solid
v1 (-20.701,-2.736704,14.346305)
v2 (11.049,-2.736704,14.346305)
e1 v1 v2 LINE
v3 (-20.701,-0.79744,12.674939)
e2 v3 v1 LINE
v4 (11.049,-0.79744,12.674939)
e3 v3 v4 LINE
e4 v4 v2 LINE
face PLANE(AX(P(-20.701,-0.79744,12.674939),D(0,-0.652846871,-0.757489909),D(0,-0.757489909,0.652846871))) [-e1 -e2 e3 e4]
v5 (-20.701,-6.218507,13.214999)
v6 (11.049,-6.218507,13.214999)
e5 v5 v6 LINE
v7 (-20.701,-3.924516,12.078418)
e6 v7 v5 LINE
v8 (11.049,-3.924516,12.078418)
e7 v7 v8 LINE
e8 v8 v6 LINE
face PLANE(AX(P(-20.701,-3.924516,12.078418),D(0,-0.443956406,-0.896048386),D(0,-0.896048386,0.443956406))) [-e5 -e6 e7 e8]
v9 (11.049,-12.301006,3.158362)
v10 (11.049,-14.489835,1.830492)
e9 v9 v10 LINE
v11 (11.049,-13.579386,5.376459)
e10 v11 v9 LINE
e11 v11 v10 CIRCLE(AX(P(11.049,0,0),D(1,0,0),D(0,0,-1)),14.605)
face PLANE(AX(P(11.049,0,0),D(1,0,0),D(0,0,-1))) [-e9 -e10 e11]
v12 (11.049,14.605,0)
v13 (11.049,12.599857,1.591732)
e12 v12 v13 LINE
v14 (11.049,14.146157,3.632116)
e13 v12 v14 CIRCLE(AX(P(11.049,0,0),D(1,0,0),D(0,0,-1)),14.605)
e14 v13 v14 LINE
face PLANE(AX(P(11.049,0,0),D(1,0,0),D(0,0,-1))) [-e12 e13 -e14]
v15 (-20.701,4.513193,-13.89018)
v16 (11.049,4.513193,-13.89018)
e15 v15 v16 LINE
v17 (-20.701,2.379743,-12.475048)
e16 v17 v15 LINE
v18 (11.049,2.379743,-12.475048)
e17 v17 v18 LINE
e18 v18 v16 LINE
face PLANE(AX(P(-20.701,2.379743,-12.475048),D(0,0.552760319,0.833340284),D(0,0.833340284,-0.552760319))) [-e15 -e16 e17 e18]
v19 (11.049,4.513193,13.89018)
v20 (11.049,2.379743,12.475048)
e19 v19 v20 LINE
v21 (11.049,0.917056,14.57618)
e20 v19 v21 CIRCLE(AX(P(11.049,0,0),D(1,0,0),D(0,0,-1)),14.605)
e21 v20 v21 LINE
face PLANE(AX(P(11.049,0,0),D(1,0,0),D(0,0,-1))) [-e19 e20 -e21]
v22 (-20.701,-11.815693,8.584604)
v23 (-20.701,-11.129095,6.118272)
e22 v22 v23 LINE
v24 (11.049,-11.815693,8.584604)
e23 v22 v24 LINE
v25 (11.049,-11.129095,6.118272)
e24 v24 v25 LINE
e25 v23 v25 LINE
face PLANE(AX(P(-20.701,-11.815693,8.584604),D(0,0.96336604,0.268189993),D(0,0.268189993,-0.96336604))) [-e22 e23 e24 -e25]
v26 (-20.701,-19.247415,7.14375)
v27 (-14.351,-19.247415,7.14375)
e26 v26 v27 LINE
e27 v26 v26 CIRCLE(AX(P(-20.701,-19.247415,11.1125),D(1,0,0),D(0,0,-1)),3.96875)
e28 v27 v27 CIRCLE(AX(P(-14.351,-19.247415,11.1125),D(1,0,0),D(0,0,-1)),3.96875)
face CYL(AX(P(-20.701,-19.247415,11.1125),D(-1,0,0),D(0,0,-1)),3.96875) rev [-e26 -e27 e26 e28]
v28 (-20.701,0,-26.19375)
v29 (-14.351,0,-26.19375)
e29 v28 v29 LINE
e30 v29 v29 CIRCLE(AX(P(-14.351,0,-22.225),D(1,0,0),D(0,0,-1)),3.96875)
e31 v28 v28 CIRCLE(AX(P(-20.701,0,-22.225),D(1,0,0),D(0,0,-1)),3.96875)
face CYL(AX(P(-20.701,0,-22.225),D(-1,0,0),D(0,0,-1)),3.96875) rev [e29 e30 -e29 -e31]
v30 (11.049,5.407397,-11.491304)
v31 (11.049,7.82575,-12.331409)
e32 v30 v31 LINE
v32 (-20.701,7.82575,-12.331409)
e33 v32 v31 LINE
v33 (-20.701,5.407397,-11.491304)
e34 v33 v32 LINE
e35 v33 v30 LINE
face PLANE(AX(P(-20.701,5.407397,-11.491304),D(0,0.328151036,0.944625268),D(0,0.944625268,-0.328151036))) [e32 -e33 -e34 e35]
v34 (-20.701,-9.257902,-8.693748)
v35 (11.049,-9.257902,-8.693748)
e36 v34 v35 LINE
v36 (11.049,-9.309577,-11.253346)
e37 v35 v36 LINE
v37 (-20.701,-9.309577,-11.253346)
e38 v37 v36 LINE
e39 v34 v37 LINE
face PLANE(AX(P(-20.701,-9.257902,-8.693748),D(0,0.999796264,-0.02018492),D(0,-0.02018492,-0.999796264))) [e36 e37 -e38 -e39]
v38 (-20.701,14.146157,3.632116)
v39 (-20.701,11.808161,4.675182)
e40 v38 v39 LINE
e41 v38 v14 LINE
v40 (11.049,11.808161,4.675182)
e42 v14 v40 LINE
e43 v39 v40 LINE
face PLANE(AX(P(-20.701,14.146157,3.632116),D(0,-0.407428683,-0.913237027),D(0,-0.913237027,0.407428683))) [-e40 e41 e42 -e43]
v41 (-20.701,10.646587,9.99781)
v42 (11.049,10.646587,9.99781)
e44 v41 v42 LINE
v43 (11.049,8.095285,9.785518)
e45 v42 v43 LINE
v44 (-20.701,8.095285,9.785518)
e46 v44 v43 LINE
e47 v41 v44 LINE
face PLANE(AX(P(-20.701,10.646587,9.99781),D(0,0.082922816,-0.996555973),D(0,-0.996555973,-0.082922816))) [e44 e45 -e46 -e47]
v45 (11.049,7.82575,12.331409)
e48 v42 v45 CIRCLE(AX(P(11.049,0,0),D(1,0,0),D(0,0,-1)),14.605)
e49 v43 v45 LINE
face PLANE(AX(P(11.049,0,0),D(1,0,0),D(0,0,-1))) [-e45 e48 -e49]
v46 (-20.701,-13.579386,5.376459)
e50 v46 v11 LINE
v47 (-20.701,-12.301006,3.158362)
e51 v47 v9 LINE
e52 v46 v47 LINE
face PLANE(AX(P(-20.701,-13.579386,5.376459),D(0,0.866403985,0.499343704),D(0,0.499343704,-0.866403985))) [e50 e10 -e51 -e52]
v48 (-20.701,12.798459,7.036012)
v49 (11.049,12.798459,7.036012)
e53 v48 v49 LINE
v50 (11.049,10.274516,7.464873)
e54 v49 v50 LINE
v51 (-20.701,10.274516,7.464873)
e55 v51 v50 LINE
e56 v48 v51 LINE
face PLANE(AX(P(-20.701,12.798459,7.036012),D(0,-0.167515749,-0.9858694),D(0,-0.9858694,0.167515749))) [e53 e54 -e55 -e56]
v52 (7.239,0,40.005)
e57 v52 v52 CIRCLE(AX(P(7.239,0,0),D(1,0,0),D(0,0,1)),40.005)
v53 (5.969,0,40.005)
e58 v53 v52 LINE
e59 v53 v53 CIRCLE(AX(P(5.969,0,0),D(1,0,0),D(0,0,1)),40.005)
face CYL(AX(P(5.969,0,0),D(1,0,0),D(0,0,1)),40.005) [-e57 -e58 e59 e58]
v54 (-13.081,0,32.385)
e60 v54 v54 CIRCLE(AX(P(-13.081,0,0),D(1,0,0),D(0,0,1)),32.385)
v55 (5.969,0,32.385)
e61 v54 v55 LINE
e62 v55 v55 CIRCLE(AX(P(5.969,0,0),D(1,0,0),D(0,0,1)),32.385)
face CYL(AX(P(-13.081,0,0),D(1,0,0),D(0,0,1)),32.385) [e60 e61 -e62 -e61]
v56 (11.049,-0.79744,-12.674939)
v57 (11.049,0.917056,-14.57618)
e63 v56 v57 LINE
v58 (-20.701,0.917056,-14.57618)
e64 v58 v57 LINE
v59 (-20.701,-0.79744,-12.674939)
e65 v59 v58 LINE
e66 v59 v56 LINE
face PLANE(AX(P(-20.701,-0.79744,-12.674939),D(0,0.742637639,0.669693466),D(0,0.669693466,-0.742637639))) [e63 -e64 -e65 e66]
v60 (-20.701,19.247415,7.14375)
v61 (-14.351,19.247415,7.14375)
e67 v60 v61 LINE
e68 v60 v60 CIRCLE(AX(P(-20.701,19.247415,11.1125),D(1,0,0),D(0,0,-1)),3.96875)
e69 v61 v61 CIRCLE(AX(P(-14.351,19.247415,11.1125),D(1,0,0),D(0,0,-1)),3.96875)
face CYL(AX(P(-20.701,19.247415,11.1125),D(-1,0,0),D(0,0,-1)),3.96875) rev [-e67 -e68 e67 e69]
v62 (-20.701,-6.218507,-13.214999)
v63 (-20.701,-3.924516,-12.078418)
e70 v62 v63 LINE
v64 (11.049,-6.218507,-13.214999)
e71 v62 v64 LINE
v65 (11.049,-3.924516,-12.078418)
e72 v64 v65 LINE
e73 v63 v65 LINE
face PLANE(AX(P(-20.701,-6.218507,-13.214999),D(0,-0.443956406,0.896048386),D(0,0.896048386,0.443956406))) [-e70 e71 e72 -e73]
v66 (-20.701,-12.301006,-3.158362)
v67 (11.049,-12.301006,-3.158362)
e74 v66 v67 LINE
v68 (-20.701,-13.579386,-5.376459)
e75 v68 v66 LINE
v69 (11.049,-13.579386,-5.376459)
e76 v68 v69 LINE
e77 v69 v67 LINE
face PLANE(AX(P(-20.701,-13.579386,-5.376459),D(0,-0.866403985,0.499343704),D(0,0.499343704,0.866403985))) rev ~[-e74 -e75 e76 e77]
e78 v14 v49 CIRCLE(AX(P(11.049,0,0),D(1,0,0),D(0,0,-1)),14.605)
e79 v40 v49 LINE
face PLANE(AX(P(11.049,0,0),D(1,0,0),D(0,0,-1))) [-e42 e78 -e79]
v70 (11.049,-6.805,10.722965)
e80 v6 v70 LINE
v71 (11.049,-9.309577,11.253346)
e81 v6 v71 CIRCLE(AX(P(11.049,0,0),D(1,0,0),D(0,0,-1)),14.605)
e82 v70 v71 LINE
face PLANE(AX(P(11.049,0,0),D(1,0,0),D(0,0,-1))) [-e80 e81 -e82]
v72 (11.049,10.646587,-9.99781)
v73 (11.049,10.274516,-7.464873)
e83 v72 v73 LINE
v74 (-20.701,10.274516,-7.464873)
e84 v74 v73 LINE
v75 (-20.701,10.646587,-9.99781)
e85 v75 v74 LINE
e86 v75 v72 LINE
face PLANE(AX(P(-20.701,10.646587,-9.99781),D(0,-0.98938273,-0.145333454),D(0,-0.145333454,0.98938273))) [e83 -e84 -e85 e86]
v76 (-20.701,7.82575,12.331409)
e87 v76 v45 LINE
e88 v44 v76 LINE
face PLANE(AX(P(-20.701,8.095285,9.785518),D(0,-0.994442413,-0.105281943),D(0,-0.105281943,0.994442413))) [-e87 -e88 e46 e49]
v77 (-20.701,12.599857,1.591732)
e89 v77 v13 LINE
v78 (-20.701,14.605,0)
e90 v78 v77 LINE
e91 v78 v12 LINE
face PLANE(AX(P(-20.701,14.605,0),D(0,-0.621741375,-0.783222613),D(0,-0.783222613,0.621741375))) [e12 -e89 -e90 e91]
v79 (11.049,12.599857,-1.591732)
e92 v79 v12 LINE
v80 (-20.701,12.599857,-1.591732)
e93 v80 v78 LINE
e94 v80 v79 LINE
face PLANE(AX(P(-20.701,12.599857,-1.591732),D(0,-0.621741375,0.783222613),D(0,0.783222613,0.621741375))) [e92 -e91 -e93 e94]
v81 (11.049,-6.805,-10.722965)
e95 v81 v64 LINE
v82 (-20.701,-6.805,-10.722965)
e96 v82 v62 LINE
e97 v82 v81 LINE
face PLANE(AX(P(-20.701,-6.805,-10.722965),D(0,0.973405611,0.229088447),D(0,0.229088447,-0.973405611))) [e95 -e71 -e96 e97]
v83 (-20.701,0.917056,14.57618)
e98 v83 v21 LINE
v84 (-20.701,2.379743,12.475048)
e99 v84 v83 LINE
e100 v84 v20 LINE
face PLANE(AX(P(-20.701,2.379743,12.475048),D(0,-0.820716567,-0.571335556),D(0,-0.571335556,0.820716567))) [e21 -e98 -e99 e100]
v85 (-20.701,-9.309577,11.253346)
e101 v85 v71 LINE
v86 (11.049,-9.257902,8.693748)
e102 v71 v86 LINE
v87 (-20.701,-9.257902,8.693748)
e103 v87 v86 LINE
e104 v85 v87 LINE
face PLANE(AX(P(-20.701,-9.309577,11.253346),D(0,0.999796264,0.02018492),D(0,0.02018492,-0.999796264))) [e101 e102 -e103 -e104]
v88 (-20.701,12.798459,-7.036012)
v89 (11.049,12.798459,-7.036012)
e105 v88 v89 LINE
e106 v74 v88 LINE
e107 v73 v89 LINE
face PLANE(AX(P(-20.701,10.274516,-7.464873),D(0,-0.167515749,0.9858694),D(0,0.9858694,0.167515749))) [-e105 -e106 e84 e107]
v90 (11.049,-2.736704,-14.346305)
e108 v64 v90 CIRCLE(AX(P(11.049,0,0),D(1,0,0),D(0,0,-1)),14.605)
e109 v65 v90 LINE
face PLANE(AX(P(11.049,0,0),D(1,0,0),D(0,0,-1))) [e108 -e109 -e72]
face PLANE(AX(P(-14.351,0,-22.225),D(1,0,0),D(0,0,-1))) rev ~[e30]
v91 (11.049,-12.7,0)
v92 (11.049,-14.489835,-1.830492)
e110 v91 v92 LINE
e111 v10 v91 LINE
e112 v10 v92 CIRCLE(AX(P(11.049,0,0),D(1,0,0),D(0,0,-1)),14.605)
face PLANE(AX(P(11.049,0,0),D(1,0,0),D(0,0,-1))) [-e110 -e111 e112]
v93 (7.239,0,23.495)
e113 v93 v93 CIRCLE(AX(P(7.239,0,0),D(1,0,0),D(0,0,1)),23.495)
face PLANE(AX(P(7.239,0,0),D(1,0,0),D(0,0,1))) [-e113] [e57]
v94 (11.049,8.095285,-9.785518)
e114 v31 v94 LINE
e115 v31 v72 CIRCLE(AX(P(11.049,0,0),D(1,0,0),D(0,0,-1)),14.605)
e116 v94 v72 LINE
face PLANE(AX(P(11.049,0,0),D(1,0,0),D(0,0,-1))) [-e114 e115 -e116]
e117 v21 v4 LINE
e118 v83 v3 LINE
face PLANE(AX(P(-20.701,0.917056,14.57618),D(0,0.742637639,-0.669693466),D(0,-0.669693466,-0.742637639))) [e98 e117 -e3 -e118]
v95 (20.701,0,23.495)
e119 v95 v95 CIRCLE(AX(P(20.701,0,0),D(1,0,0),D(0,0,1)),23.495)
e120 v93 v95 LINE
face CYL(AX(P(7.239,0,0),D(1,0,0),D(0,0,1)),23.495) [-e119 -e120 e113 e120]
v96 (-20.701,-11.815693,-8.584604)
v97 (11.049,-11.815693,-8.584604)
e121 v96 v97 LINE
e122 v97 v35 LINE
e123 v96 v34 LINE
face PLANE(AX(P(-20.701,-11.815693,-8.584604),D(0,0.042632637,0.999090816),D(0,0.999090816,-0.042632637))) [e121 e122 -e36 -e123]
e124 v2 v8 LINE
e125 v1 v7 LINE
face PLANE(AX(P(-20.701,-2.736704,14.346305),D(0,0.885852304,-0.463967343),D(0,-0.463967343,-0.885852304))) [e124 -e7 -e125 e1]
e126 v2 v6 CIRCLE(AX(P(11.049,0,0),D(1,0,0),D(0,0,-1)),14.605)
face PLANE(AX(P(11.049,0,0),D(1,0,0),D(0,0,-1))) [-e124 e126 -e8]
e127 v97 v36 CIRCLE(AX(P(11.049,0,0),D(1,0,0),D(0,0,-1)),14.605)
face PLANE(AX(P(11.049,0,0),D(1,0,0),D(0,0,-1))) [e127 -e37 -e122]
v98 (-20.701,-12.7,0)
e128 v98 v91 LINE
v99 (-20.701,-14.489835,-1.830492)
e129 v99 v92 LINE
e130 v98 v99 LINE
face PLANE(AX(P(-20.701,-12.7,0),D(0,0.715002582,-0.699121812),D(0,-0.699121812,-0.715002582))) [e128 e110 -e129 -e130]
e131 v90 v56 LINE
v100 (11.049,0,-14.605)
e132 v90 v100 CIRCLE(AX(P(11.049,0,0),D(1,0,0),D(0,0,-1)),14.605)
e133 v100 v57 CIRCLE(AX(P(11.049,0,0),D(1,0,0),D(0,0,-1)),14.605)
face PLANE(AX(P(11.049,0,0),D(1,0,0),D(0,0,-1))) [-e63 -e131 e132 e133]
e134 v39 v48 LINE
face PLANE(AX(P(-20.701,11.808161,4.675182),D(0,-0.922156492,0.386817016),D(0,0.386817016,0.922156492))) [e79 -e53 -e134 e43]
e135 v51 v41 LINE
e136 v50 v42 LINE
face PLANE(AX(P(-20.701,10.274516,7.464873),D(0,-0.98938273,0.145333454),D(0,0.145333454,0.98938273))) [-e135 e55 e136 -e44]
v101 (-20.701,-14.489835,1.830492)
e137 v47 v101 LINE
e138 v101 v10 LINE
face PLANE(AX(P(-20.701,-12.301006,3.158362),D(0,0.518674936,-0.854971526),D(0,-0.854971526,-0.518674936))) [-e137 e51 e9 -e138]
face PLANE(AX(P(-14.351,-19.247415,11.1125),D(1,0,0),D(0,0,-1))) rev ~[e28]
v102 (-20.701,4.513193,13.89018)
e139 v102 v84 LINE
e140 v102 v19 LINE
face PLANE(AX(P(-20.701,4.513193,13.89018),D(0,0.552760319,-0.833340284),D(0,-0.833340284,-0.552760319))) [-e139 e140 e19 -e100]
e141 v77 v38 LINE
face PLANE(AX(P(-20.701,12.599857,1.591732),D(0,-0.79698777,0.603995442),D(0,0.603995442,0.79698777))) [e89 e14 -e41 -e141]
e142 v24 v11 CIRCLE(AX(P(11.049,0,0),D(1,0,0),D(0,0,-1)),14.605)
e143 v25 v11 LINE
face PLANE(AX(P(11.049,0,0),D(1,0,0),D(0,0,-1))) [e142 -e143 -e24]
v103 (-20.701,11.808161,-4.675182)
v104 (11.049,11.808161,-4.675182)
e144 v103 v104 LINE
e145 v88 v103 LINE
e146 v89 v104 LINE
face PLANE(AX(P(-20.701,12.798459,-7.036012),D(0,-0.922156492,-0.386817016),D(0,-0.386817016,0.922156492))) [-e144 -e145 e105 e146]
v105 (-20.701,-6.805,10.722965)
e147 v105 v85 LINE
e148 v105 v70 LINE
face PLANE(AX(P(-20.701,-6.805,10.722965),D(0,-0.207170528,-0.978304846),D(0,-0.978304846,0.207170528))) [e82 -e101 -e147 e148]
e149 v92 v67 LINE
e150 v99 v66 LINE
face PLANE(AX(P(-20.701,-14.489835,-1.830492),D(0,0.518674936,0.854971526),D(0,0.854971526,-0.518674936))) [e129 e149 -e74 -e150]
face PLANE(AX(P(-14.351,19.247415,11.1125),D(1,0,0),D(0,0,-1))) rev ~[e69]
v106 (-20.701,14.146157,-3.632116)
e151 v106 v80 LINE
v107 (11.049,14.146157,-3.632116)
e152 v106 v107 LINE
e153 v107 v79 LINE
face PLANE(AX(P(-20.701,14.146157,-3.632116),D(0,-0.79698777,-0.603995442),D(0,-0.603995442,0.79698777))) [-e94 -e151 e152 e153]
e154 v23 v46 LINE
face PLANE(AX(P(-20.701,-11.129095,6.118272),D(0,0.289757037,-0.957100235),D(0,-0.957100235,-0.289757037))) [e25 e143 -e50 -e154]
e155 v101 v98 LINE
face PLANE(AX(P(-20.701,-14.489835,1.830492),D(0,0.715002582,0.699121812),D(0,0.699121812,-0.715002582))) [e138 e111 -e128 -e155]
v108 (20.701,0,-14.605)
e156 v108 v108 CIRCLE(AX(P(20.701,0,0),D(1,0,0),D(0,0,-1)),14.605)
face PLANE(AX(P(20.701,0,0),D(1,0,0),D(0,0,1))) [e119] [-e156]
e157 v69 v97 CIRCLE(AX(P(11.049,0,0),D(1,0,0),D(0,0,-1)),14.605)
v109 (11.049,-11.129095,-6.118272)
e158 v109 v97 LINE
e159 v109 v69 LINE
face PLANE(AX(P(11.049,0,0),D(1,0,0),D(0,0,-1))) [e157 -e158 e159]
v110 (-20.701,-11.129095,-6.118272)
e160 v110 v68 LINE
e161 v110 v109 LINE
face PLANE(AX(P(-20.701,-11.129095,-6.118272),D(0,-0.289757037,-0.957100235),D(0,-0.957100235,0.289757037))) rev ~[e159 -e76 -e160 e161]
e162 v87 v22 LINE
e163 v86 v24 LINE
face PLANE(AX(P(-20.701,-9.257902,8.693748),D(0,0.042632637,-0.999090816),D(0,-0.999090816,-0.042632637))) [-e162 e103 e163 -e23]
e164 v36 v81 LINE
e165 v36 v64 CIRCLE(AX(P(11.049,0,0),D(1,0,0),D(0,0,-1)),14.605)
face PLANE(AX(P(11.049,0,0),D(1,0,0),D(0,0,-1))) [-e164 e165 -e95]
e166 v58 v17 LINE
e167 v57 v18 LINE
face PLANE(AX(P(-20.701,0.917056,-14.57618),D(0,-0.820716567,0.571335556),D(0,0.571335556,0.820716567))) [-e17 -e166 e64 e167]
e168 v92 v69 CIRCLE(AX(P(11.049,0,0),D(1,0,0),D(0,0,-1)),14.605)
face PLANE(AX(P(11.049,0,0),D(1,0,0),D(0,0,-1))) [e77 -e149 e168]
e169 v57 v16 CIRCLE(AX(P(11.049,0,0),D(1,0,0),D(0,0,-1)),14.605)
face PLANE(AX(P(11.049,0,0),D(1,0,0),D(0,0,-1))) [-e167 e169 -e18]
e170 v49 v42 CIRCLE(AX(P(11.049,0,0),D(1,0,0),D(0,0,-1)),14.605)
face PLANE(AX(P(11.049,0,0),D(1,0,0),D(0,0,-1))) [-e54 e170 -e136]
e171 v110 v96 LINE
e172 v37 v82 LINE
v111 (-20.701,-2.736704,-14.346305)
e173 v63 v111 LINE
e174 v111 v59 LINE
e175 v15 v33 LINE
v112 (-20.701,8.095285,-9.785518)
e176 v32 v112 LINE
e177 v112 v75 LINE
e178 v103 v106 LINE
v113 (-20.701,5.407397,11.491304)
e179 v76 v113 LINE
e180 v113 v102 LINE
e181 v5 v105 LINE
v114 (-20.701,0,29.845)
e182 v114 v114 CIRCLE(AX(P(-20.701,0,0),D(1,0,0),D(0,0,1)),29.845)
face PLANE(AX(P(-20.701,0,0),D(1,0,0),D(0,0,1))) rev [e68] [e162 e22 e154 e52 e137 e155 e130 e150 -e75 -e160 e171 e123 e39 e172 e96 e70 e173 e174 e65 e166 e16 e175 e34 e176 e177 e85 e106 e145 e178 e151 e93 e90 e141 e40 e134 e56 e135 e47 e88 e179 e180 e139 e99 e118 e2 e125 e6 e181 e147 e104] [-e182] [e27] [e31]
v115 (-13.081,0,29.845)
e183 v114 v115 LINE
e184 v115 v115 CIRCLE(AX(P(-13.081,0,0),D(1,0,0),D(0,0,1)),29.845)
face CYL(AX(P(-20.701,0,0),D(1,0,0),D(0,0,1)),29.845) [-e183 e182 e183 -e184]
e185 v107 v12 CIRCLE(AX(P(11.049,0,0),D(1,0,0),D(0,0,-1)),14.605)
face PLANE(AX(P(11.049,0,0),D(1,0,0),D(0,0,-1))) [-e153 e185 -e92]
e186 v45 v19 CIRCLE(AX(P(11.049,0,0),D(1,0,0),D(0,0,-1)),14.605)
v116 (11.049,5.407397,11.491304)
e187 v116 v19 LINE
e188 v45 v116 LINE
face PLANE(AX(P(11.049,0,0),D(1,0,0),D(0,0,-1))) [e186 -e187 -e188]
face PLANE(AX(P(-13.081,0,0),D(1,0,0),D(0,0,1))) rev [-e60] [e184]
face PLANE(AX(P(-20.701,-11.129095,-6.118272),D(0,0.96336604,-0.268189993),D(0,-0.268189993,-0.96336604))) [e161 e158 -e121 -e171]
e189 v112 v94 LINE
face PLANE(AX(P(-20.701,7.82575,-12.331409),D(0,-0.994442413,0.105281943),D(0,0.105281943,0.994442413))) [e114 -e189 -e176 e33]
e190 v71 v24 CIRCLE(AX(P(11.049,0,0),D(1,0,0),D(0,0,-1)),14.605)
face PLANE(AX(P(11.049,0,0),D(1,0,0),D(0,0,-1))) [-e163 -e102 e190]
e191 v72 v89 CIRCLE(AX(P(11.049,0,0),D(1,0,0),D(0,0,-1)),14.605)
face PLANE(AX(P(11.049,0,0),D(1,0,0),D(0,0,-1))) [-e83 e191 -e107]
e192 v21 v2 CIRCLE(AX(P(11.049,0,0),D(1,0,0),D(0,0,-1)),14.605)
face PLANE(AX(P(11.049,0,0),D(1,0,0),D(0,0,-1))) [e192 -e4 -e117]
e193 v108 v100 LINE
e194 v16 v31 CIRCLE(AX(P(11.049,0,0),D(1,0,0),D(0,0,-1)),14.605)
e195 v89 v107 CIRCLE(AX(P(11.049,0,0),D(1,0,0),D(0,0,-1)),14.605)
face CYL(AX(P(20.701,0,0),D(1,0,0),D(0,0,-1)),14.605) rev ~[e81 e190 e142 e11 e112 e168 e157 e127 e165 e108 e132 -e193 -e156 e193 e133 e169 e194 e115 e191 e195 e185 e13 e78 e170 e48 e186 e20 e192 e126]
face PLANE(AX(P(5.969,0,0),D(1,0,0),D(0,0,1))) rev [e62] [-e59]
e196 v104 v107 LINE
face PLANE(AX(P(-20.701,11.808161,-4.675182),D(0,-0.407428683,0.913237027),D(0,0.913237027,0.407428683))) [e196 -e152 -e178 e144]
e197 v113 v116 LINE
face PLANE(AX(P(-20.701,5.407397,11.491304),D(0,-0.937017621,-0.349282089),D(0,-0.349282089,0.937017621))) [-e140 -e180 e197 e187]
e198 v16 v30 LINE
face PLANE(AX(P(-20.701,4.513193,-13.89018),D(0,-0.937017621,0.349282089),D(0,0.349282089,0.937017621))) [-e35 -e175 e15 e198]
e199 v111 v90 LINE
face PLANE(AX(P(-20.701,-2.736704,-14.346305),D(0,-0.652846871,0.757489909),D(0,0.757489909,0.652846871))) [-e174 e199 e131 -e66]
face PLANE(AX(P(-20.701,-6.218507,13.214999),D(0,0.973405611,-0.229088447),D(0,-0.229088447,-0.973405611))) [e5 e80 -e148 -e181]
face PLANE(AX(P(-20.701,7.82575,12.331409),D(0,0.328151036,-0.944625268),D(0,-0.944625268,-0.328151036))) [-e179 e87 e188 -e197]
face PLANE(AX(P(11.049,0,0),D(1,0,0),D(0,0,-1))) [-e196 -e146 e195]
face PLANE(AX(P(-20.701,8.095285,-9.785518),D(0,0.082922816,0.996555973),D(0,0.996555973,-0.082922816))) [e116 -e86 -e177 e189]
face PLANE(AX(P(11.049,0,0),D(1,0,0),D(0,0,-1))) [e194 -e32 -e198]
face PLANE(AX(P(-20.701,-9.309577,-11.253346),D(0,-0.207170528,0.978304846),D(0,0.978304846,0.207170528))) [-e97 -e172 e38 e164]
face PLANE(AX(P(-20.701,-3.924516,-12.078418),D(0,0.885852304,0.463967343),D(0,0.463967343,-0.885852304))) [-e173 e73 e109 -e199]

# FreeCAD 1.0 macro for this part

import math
import FreeCAD as App
import Part
import Sketcher

V = App.Vector
Q = App.Units.Quantity


def add_polygon(sketch, points):
    """Adds a closed chain of lines whose ends are joined by coincident constraints."""
    first, n = sketch.GeometryCount, len(points)
    for a, b in zip(points, points[1:] + points[:1]):
        sketch.addGeometry(Part.LineSegment(App.Vector(*a, 0), App.Vector(*b, 0)), False)
    for i in range(n):
        sketch.addConstraint(Sketcher.Constraint("Coincident", first + i, 2, first + (i + 1) % n, 1))

doc = App.newDocument("Part")
body = doc.addObject("PartDesign::Body", "Body")

# Sketch on XZ plane
sketch1 = body.newObject("Sketcher::SketchObject", "Sketch")
sketch1.AttachmentSupport = (doc.getObject("XZ_Plane"), [""])
sketch1.MapMode = "FlatFace"
add_polygon(sketch1, [(-20.7, 12.7), (-20.7, 29.8), (-13.1, 29.8), (-13.1, 32.4), (6, 32.4), (6, 40), (7.2, 40), (7.2, 23.5), (20.7, 23.5), (20.7, 12.7)])  # lines 0-9
sketch1.addConstraint(Sketcher.Constraint("Vertical", 0))
sketch1.addConstraint(Sketcher.Constraint("Horizontal", 1))
sketch1.addConstraint(Sketcher.Constraint("Vertical", 2))
sketch1.addConstraint(Sketcher.Constraint("Horizontal", 3))
sketch1.addConstraint(Sketcher.Constraint("Vertical", 4))
sketch1.addConstraint(Sketcher.Constraint("Horizontal", 5))
sketch1.addConstraint(Sketcher.Constraint("Vertical", 6))
sketch1.addConstraint(Sketcher.Constraint("Horizontal", 7))
sketch1.addConstraint(Sketcher.Constraint("Vertical", 8))
sketch1.addConstraint(Sketcher.Constraint("Horizontal", 9))
sketch1.addConstraint(Sketcher.Constraint("Equal", 1, 4))
sketch1.addConstraint(Sketcher.Constraint("DistanceX", 1, 1, 1, 2, Q("0.3 in")))
sketch1.addConstraint(Sketcher.Constraint("DistanceY", 2, 1, 2, 2, Q("0.1 in")))
sketch1.addConstraint(Sketcher.Constraint("DistanceX", 3, 1, 3, 2, Q("0.75 in")))
sketch1.addConstraint(Sketcher.Constraint("DistanceX", 5, 1, 5, 2, Q("0.05 in")))
sketch1.addConstraint(Sketcher.Constraint("DistanceX", 7, 1, 7, 2, Q("0.53 in")))
sketch1.addConstraint(Sketcher.Constraint("DistanceY", 6, 2, 6, 1, Q("0.65 in")))
sketch1.addConstraint(Sketcher.Constraint("DistanceY", -1, 1, 8, 2, Q("0.5 in")))
sketch1.addConstraint(Sketcher.Constraint("DistanceY", 0, 1, 0, 2, Q("0.675 in")))
sketch1.addConstraint(Sketcher.Constraint("DistanceX", 0, 2, -1, 1, Q("0.815 in")))
revolution = body.newObject("PartDesign::Revolution", "Revolution")
revolution.Profile = sketch1
revolution.ReferenceAxis = (sketch1, ["H_Axis"])
revolution.Angle = 360

# Sketch on YZ plane
sketch2 = body.newObject("Sketcher::SketchObject", "Sketch001")
sketch2.AttachmentSupport = (doc.getObject("YZ_Plane"), [""])
sketch2.MapMode = "FlatFace"
sketch2.AttachmentOffset = App.Placement(V(0, 0, -0.815 * 25.4), App.Rotation())
sketch2.addGeometry(Part.Circle(V(0, -22.2, 0), V(0, 0, 1), 4), False)
sketch2.addGeometry(Part.Circle(V(-19.2, 11.1, 0), V(0, 0, 1), 4), False)
sketch2.addGeometry(Part.Circle(V(19.2, 11.1, 0), V(0, 0, 1), 4), False)
sketch2.addConstraint(Sketcher.Constraint("Equal", 0, 1))
sketch2.addConstraint(Sketcher.Constraint("Equal", 1, 2))
sketch2.addConstraint(Sketcher.Constraint("Symmetric", 1, 3, 2, 3, -2))
sketch2.addConstraint(Sketcher.Constraint("PointOnObject", 0, 3, -2))
sketch2.addConstraint(Sketcher.Constraint("Diameter", 0, Q("0.3125 in")))
sketch2.addConstraint(Sketcher.Constraint("DistanceY", 0, 3, -1, 1, Q("0.875 in")))
sketch2.addConstraint(Sketcher.Constraint("DistanceY", -1, 1, 1, 3, Q("0.4375 in")))
sketch2.addConstraint(Sketcher.Constraint("DistanceX", 1, 3, 2, 3, Q("38.494829 mm")))
pocket1 = body.newObject("PartDesign::Pocket", "Pocket")
pocket1.Profile = sketch2
pocket1.Length = Q("0.25 in")
pocket1.Reversed = True

# Sketch on YZ plane
sketch3 = body.newObject("Sketcher::SketchObject", "Sketch002")
sketch3.AttachmentSupport = (doc.getObject("YZ_Plane"), [""])
sketch3.MapMode = "FlatFace"
sketch3.AttachmentOffset = App.Placement(V(0, 0, -0.815 * 25.4), App.Rotation())
sketch3.addGeometry(Part.LineSegment(V(-6.2, 13.2, 0), V(-6.8, 10.7, 0)), False)
sketch3.addGeometry(Part.ArcOfCircle(Part.Circle(V(0, 0, 0), V(0, 0, 1), 12.7), math.radians(108), math.radians(122.4)), False)
sketch3.addGeometry(Part.LineSegment(V(-3.9, 12.1, 0), V(-6.2, 13.2, 0)), False)
sketch3.addGeometry(Part.LineSegment(V(-2.7, 14.3, 0), V(-3.9, 12.1, 0)), False)
sketch3.addGeometry(Part.ArcOfCircle(Part.Circle(V(0, 0, 0), V(0, 0, 1), 12.7), math.radians(93.6), math.radians(108)), False)
sketch3.addGeometry(Part.LineSegment(V(-0.8, 12.7, 0), V(-2.7, 14.3, 0)), False)
sketch3.addGeometry(Part.LineSegment(V(0.9, 14.6, 0), V(-0.8, 12.7, 0)), False)
sketch3.addGeometry(Part.ArcOfCircle(Part.Circle(V(0, 0, 0), V(0, 0, 1), 12.7), math.radians(79.2), math.radians(93.6)), False)
sketch3.addGeometry(Part.LineSegment(V(2.4, 12.5, 0), V(0.9, 14.6, 0)), False)
sketch3.addGeometry(Part.LineSegment(V(4.5, 13.9, 0), V(2.4, 12.5, 0)), False)
sketch3.addGeometry(Part.ArcOfCircle(Part.Circle(V(0, 0, 0), V(0, 0, 1), 12.7), math.radians(64.8), math.radians(79.2)), False)
sketch3.addGeometry(Part.LineSegment(V(5.4, 11.5, 0), V(4.5, 13.9, 0)), False)
sketch3.addGeometry(Part.LineSegment(V(7.8, 12.3, 0), V(5.4, 11.5, 0)), False)
sketch3.addGeometry(Part.ArcOfCircle(Part.Circle(V(0, 0, 0), V(0, 0, 1), 12.7), math.radians(50.4), math.radians(64.8)), False)
sketch3.addGeometry(Part.LineSegment(V(8.1, 9.8, 0), V(7.8, 12.3, 0)), False)
sketch3.addGeometry(Part.LineSegment(V(10.6, 10, 0), V(8.1, 9.8, 0)), False)
sketch3.addGeometry(Part.ArcOfCircle(Part.Circle(V(0, 0, 0), V(0, 0, 1), 12.7), math.radians(36), math.radians(50.4)), False)
sketch3.addGeometry(Part.LineSegment(V(10.3, 7.5, 0), V(10.6, 10, 0)), False)
sketch3.addGeometry(Part.LineSegment(V(12.8, 7, 0), V(10.3, 7.5, 0)), False)
sketch3.addGeometry(Part.ArcOfCircle(Part.Circle(V(0, 0, 0), V(0, 0, 1), 12.7), math.radians(21.6), math.radians(36)), False)
sketch3.addGeometry(Part.LineSegment(V(11.8, 4.7, 0), V(12.8, 7, 0)), False)
sketch3.addGeometry(Part.LineSegment(V(14.1, 3.6, 0), V(11.8, 4.7, 0)), False)
sketch3.addGeometry(Part.ArcOfCircle(Part.Circle(V(0, 0, 0), V(0, 0, 1), 12.7), math.radians(7.2), math.radians(21.6)), False)
sketch3.addGeometry(Part.LineSegment(V(12.6, 1.6, 0), V(14.1, 3.6, 0)), False)
sketch3.addGeometry(Part.ArcOfCircle(Part.Circle(V(0, 0, 0), V(0, 0, 1), 12.7), math.radians(-7.2), math.radians(7.2)), False)
sketch3.addGeometry(Part.LineSegment(V(12.6, -1.6, 0), V(14.6, 0, 0)), False)
sketch3.addGeometry(Part.LineSegment(V(14.6, 0, 0), V(12.6, 1.6, 0)), False)
sketch3.addGeometry(Part.ArcOfCircle(Part.Circle(V(0, 0, 0), V(0, 0, 1), 12.7), math.radians(-21.6), math.radians(-7.2)), False)
sketch3.addGeometry(Part.LineSegment(V(11.8, -4.7, 0), V(14.1, -3.6, 0)), False)
sketch3.addGeometry(Part.LineSegment(V(14.1, -3.6, 0), V(12.6, -1.6, 0)), False)
sketch3.addGeometry(Part.ArcOfCircle(Part.Circle(V(0, 0, 0), V(0, 0, 1), 12.7), math.radians(-36), math.radians(-21.6)), False)
sketch3.addGeometry(Part.LineSegment(V(10.3, -7.5, 0), V(12.8, -7, 0)), False)
sketch3.addGeometry(Part.LineSegment(V(12.8, -7, 0), V(11.8, -4.7, 0)), False)
sketch3.addGeometry(Part.ArcOfCircle(Part.Circle(V(0, 0, 0), V(0, 0, 1), 12.7), math.radians(-50.4), math.radians(-36)), False)
sketch3.addGeometry(Part.LineSegment(V(8.1, -9.8, 0), V(10.6, -10, 0)), False)
sketch3.addGeometry(Part.LineSegment(V(10.6, -10, 0), V(10.3, -7.5, 0)), False)
sketch3.addGeometry(Part.ArcOfCircle(Part.Circle(V(0, 0, 0), V(0, 0, 1), 12.7), math.radians(-64.8), math.radians(-50.4)), False)
sketch3.addGeometry(Part.LineSegment(V(5.4, -11.5, 0), V(7.8, -12.3, 0)), False)
sketch3.addGeometry(Part.LineSegment(V(7.8, -12.3, 0), V(8.1, -9.8, 0)), False)
sketch3.addGeometry(Part.ArcOfCircle(Part.Circle(V(0, 0, 0), V(0, 0, 1), 12.7), math.radians(-79.2), math.radians(-64.8)), False)
sketch3.addGeometry(Part.LineSegment(V(2.4, -12.5, 0), V(4.5, -13.9, 0)), False)
sketch3.addGeometry(Part.LineSegment(V(4.5, -13.9, 0), V(5.4, -11.5, 0)), False)
sketch3.addGeometry(Part.ArcOfCircle(Part.Circle(V(0, 0, 0), V(0, 0, 1), 12.7), math.radians(-93.6), math.radians(-90)), False)
sketch3.addGeometry(Part.LineSegment(V(-0.8, -12.7, 0), V(0.9, -14.6, 0)), False)
sketch3.addGeometry(Part.LineSegment(V(0.9, -14.6, 0), V(2.4, -12.5, 0)), False)
sketch3.addGeometry(Part.ArcOfCircle(Part.Circle(V(0, 0, 0), V(0, 0, 1), 12.7), math.radians(-90), math.radians(-79.2)), False)
sketch3.addGeometry(Part.ArcOfCircle(Part.Circle(V(0, 0, 0), V(0, 0, 1), 12.7), math.radians(-108), math.radians(-93.6)), False)
sketch3.addGeometry(Part.LineSegment(V(-3.9, -12.1, 0), V(-2.7, -14.3, 0)), False)
sketch3.addGeometry(Part.LineSegment(V(-2.7, -14.3, 0), V(-0.8, -12.7, 0)), False)
sketch3.addGeometry(Part.ArcOfCircle(Part.Circle(V(0, 0, 0), V(0, 0, 1), 12.7), math.radians(-122.4), math.radians(-108)), False)
sketch3.addGeometry(Part.LineSegment(V(-6.8, -10.7, 0), V(-6.2, -13.2, 0)), False)
sketch3.addGeometry(Part.LineSegment(V(-6.2, -13.2, 0), V(-3.9, -12.1, 0)), False)
sketch3.addGeometry(Part.ArcOfCircle(Part.Circle(V(0, 0, 0), V(0, 0, 1), 12.7), math.radians(-136.8), math.radians(-122.4)), False)
sketch3.addGeometry(Part.LineSegment(V(-9.3, -8.7, 0), V(-9.3, -11.3, 0)), False)
sketch3.addGeometry(Part.LineSegment(V(-9.3, -11.3, 0), V(-6.8, -10.7, 0)), False)
sketch3.addGeometry(Part.ArcOfCircle(Part.Circle(V(0, 0, 0), V(0, 0, 1), 12.7), math.radians(-151.2), math.radians(-136.8)), False)
sketch3.addGeometry(Part.LineSegment(V(-11.1, -6.1, 0), V(-11.8, -8.6, 0)), False)
sketch3.addGeometry(Part.LineSegment(V(-11.8, -8.6, 0), V(-9.3, -8.7, 0)), False)
sketch3.addGeometry(Part.LineSegment(V(-14.5, -1.8, 0), V(-12.3, -3.2, 0)), False)
sketch3.addGeometry(Part.ArcOfCircle(Part.Circle(V(0, 0, 0), V(0, 0, 1), 12.7), math.radians(180), math.radians(194.4)), False)
sketch3.addGeometry(Part.LineSegment(V(-12.7, 0, 0), V(-14.5, -1.8, 0)), False)
sketch3.addGeometry(Part.LineSegment(V(-14.5, 1.8, 0), V(-12.7, 0, 0)), False)
sketch3.addGeometry(Part.ArcOfCircle(Part.Circle(V(0, 0, 0), V(0, 0, 1), 12.7), math.radians(165.6), math.radians(180)), False)
sketch3.addGeometry(Part.LineSegment(V(-12.3, 3.2, 0), V(-14.5, 1.8, 0)), False)
sketch3.addGeometry(Part.LineSegment(V(-13.6, 5.4, 0), V(-12.3, 3.2, 0)), False)
sketch3.addGeometry(Part.ArcOfCircle(Part.Circle(V(0, 0, 0), V(0, 0, 1), 12.7), math.radians(151.2), math.radians(165.6)), False)
sketch3.addGeometry(Part.LineSegment(V(-11.1, 6.1, 0), V(-13.6, 5.4, 0)), False)
sketch3.addGeometry(Part.LineSegment(V(-11.8, 8.6, 0), V(-11.1, 6.1, 0)), False)
sketch3.addGeometry(Part.ArcOfCircle(Part.Circle(V(0, 0, 0), V(0, 0, 1), 12.7), math.radians(136.8), math.radians(151.2)), False)
sketch3.addGeometry(Part.LineSegment(V(-9.3, 8.7, 0), V(-11.8, 8.6, 0)), False)
sketch3.addGeometry(Part.LineSegment(V(-9.3, 11.3, 0), V(-9.3, 8.7, 0)), False)
sketch3.addGeometry(Part.ArcOfCircle(Part.Circle(V(0, 0, 0), V(0, 0, 1), 12.7), math.radians(122.4), math.radians(136.8)), False)
sketch3.addGeometry(Part.LineSegment(V(-6.8, 10.7, 0), V(-9.3, 11.3, 0)), False)
sketch3.addGeometry(Part.LineSegment(V(-13.6, -5.4, 0), V(-11.1, -6.1, 0)), False)
sketch3.addGeometry(Part.ArcOfCircle(Part.Circle(V(0, 0, 0), V(0, 0, 1), 12.7), math.radians(-165.6), math.radians(-151.2)), False)
sketch3.addGeometry(Part.LineSegment(V(-12.3, -3.2, 0), V(-13.6, -5.4, 0)), False)
sketch3.addConstraint(Sketcher.Constraint("Coincident", 0, 2, 1, 2))
sketch3.addConstraint(Sketcher.Constraint("Coincident", 1, 1, 2, 1))
sketch3.addConstraint(Sketcher.Constraint("Coincident", 2, 2, 0, 1))
sketch3.addConstraint(Sketcher.Constraint("Coincident", 3, 2, 4, 2))
sketch3.addConstraint(Sketcher.Constraint("Coincident", 4, 1, 5, 1))
sketch3.addConstraint(Sketcher.Constraint("Coincident", 5, 2, 3, 1))
sketch3.addConstraint(Sketcher.Constraint("Coincident", 6, 2, 7, 2))
sketch3.addConstraint(Sketcher.Constraint("Coincident", 7, 1, 8, 1))
sketch3.addConstraint(Sketcher.Constraint("Coincident", 8, 2, 6, 1))
sketch3.addConstraint(Sketcher.Constraint("Coincident", 9, 2, 10, 2))
sketch3.addConstraint(Sketcher.Constraint("Coincident", 10, 1, 11, 1))
sketch3.addConstraint(Sketcher.Constraint("Coincident", 11, 2, 9, 1))
sketch3.addConstraint(Sketcher.Constraint("Coincident", 12, 2, 13, 2))
sketch3.addConstraint(Sketcher.Constraint("Coincident", 13, 1, 14, 1))
sketch3.addConstraint(Sketcher.Constraint("Coincident", 14, 2, 12, 1))
sketch3.addConstraint(Sketcher.Constraint("Coincident", 15, 2, 16, 2))
sketch3.addConstraint(Sketcher.Constraint("Coincident", 16, 1, 17, 1))
sketch3.addConstraint(Sketcher.Constraint("Coincident", 17, 2, 15, 1))
sketch3.addConstraint(Sketcher.Constraint("Coincident", 18, 2, 19, 2))
sketch3.addConstraint(Sketcher.Constraint("Coincident", 19, 1, 20, 1))
sketch3.addConstraint(Sketcher.Constraint("Coincident", 20, 2, 18, 1))
sketch3.addConstraint(Sketcher.Constraint("Coincident", 21, 2, 22, 2))
sketch3.addConstraint(Sketcher.Constraint("Coincident", 22, 1, 23, 1))
sketch3.addConstraint(Sketcher.Constraint("Coincident", 23, 2, 21, 1))
sketch3.addConstraint(Sketcher.Constraint("Coincident", 24, 1, 25, 1))
sketch3.addConstraint(Sketcher.Constraint("Coincident", 25, 2, 26, 1))
sketch3.addConstraint(Sketcher.Constraint("Coincident", 26, 2, 24, 2))
sketch3.addConstraint(Sketcher.Constraint("Coincident", 27, 1, 28, 1))
sketch3.addConstraint(Sketcher.Constraint("Coincident", 28, 2, 29, 1))
sketch3.addConstraint(Sketcher.Constraint("Coincident", 29, 2, 27, 2))
sketch3.addConstraint(Sketcher.Constraint("Coincident", 30, 1, 31, 1))
sketch3.addConstraint(Sketcher.Constraint("Coincident", 31, 2, 32, 1))
sketch3.addConstraint(Sketcher.Constraint("Coincident", 32, 2, 30, 2))
sketch3.addConstraint(Sketcher.Constraint("Coincident", 33, 1, 34, 1))
sketch3.addConstraint(Sketcher.Constraint("Coincident", 34, 2, 35, 1))
sketch3.addConstraint(Sketcher.Constraint("Coincident", 35, 2, 33, 2))
sketch3.addConstraint(Sketcher.Constraint("Coincident", 36, 1, 37, 1))
sketch3.addConstraint(Sketcher.Constraint("Coincident", 37, 2, 38, 1))
sketch3.addConstraint(Sketcher.Constraint("Coincident", 38, 2, 36, 2))
sketch3.addConstraint(Sketcher.Constraint("Coincident", 39, 1, 40, 1))
sketch3.addConstraint(Sketcher.Constraint("Coincident", 40, 2, 41, 1))
sketch3.addConstraint(Sketcher.Constraint("Coincident", 41, 2, 39, 2))
sketch3.addConstraint(Sketcher.Constraint("Coincident", 42, 1, 43, 1))
sketch3.addConstraint(Sketcher.Constraint("Coincident", 43, 2, 44, 1))
sketch3.addConstraint(Sketcher.Constraint("Coincident", 44, 2, 45, 2))
sketch3.addConstraint(Sketcher.Constraint("Tangent", 45, 1, 42, 2))
sketch3.addConstraint(Sketcher.Constraint("Coincident", 46, 1, 47, 1))
sketch3.addConstraint(Sketcher.Constraint("Coincident", 47, 2, 48, 1))
sketch3.addConstraint(Sketcher.Constraint("Coincident", 48, 2, 46, 2))
sketch3.addConstraint(Sketcher.Constraint("Coincident", 49, 1, 50, 1))
sketch3.addConstraint(Sketcher.Constraint("Coincident", 50, 2, 51, 1))
sketch3.addConstraint(Sketcher.Constraint("Coincident", 51, 2, 49, 2))
sketch3.addConstraint(Sketcher.Constraint("Coincident", 52, 1, 53, 1))
sketch3.addConstraint(Sketcher.Constraint("Coincident", 53, 2, 54, 1))
sketch3.addConstraint(Sketcher.Constraint("Coincident", 54, 2, 52, 2))
sketch3.addConstraint(Sketcher.Constraint("Coincident", 55, 1, 56, 1))
sketch3.addConstraint(Sketcher.Constraint("Coincident", 56, 2, 57, 1))
sketch3.addConstraint(Sketcher.Constraint("Coincident", 57, 2, 55, 2))
sketch3.addConstraint(Sketcher.Constraint("Coincident", 58, 2, 59, 2))
sketch3.addConstraint(Sketcher.Constraint("Coincident", 59, 1, 60, 1))
sketch3.addConstraint(Sketcher.Constraint("Coincident", 60, 2, 58, 1))
sketch3.addConstraint(Sketcher.Constraint("Coincident", 61, 2, 62, 2))
sketch3.addConstraint(Sketcher.Constraint("Coincident", 62, 1, 63, 1))
sketch3.addConstraint(Sketcher.Constraint("Coincident", 63, 2, 61, 1))
sketch3.addConstraint(Sketcher.Constraint("Coincident", 64, 2, 65, 2))
sketch3.addConstraint(Sketcher.Constraint("Coincident", 65, 1, 66, 1))
sketch3.addConstraint(Sketcher.Constraint("Coincident", 66, 2, 64, 1))
sketch3.addConstraint(Sketcher.Constraint("Coincident", 67, 2, 68, 2))
sketch3.addConstraint(Sketcher.Constraint("Coincident", 68, 1, 69, 1))
sketch3.addConstraint(Sketcher.Constraint("Coincident", 69, 2, 67, 1))
sketch3.addConstraint(Sketcher.Constraint("Coincident", 70, 2, 71, 2))
sketch3.addConstraint(Sketcher.Constraint("Coincident", 71, 1, 72, 1))
sketch3.addConstraint(Sketcher.Constraint("Coincident", 72, 2, 70, 1))
sketch3.addConstraint(Sketcher.Constraint("Coincident", 73, 2, 74, 2))
sketch3.addConstraint(Sketcher.Constraint("Coincident", 74, 1, 75, 1))
sketch3.addConstraint(Sketcher.Constraint("Coincident", 75, 2, 73, 1))
sketch3.addConstraint(Sketcher.Constraint("Coincident", 1, 3, -1, 1))
sketch3.addConstraint(Sketcher.Constraint("Coincident", 4, 3, -1, 1))
sketch3.addConstraint(Sketcher.Constraint("Coincident", 7, 3, -1, 1))
sketch3.addConstraint(Sketcher.Constraint("Coincident", 10, 3, -1, 1))
sketch3.addConstraint(Sketcher.Constraint("Coincident", 13, 3, -1, 1))
sketch3.addConstraint(Sketcher.Constraint("Coincident", 16, 3, -1, 1))
sketch3.addConstraint(Sketcher.Constraint("Coincident", 19, 3, -1, 1))
sketch3.addConstraint(Sketcher.Constraint("Coincident", 22, 3, -1, 1))
sketch3.addConstraint(Sketcher.Constraint("Coincident", 24, 3, -1, 1))
sketch3.addConstraint(Sketcher.Constraint("Coincident", 27, 3, -1, 1))
sketch3.addConstraint(Sketcher.Constraint("Coincident", 30, 3, -1, 1))
sketch3.addConstraint(Sketcher.Constraint("Coincident", 33, 3, -1, 1))
sketch3.addConstraint(Sketcher.Constraint("Coincident", 36, 3, -1, 1))
sketch3.addConstraint(Sketcher.Constraint("Coincident", 39, 3, -1, 1))
sketch3.addConstraint(Sketcher.Constraint("Coincident", 42, 3, -1, 1))
sketch3.addConstraint(Sketcher.Constraint("Coincident", 46, 3, -1, 1))
sketch3.addConstraint(Sketcher.Constraint("Coincident", 49, 3, -1, 1))
sketch3.addConstraint(Sketcher.Constraint("Coincident", 52, 3, -1, 1))
sketch3.addConstraint(Sketcher.Constraint("Coincident", 55, 3, -1, 1))
sketch3.addConstraint(Sketcher.Constraint("Coincident", 59, 3, -1, 1))
sketch3.addConstraint(Sketcher.Constraint("Coincident", 62, 3, -1, 1))
sketch3.addConstraint(Sketcher.Constraint("Coincident", 65, 3, -1, 1))
sketch3.addConstraint(Sketcher.Constraint("Coincident", 68, 3, -1, 1))
sketch3.addConstraint(Sketcher.Constraint("Coincident", 71, 3, -1, 1))
sketch3.addConstraint(Sketcher.Constraint("Coincident", 74, 3, -1, 1))
sketch3.addConstraint(Sketcher.Constraint("Coincident", 3, 2, 1, 1))
sketch3.addConstraint(Sketcher.Constraint("Coincident", 6, 2, 4, 1))
sketch3.addConstraint(Sketcher.Constraint("Coincident", 9, 2, 7, 1))
sketch3.addConstraint(Sketcher.Constraint("Coincident", 12, 2, 10, 1))
sketch3.addConstraint(Sketcher.Constraint("Coincident", 15, 2, 13, 1))
sketch3.addConstraint(Sketcher.Constraint("Coincident", 18, 2, 16, 1))
sketch3.addConstraint(Sketcher.Constraint("Coincident", 21, 2, 19, 1))
sketch3.addConstraint(Sketcher.Constraint("Coincident", 26, 2, 22, 1))
sketch3.addConstraint(Sketcher.Constraint("Coincident", 29, 2, 24, 1))
sketch3.addConstraint(Sketcher.Constraint("Coincident", 32, 2, 27, 1))
sketch3.addConstraint(Sketcher.Constraint("Coincident", 35, 2, 30, 1))
sketch3.addConstraint(Sketcher.Constraint("Coincident", 38, 2, 33, 1))
sketch3.addConstraint(Sketcher.Constraint("Coincident", 41, 2, 36, 1))
sketch3.addConstraint(Sketcher.Constraint("Coincident", 44, 2, 39, 1))
sketch3.addConstraint(Sketcher.Constraint("Coincident", 48, 2, 42, 1))
sketch3.addConstraint(Sketcher.Constraint("Coincident", 51, 2, 46, 1))
sketch3.addConstraint(Sketcher.Constraint("Coincident", 54, 2, 49, 1))
sketch3.addConstraint(Sketcher.Constraint("Coincident", 57, 2, 52, 1))
sketch3.addConstraint(Sketcher.Constraint("Coincident", 61, 2, 59, 1))
sketch3.addConstraint(Sketcher.Constraint("Coincident", 64, 2, 62, 1))
sketch3.addConstraint(Sketcher.Constraint("Coincident", 67, 2, 65, 1))
sketch3.addConstraint(Sketcher.Constraint("Coincident", 70, 2, 68, 1))
sketch3.addConstraint(Sketcher.Constraint("Coincident", 71, 1, 0, 2))
sketch3.addConstraint(Sketcher.Constraint("Coincident", 73, 2, 55, 1))
sketch3.addConstraint(Sketcher.Constraint("Coincident", 74, 1, 58, 2))
sketch3.addConstraint(Sketcher.Constraint("Symmetric", 23, 2, 28, 2, -1))
sketch3.addConstraint(Sketcher.Constraint("Symmetric", 20, 2, 31, 2, -1))
sketch3.addConstraint(Sketcher.Constraint("Symmetric", 17, 2, 34, 2, -1))
sketch3.addConstraint(Sketcher.Constraint("Symmetric", 14, 2, 37, 2, -1))
sketch3.addConstraint(Sketcher.Constraint("Symmetric", 11, 2, 40, 2, -1))
sketch3.addConstraint(Sketcher.Constraint("Symmetric", 8, 2, 43, 2, -1))
sketch3.addConstraint(Sketcher.Constraint("Symmetric", 5, 2, 47, 2, -1))
sketch3.addConstraint(Sketcher.Constraint("Symmetric", 2, 2, 50, 2, -1))
sketch3.addConstraint(Sketcher.Constraint("Symmetric", 60, 2, 63, 2, -1))
sketch3.addConstraint(Sketcher.Constraint("Symmetric", 56, 2, 69, 2, -1))
sketch3.addConstraint(Sketcher.Constraint("Symmetric", 53, 2, 72, 2, -1))
sketch3.addConstraint(Sketcher.Constraint("Symmetric", 66, 2, 75, 2, -1))
sketch3.addConstraint(Sketcher.Constraint("PointOnObject", 25, 2, -1))
sketch3.addConstraint(Sketcher.Constraint("PointOnObject", 45, 1, -2))
sketch3.addConstraint(Sketcher.Constraint("PointOnObject", 59, 1, -1))
sketch3.addConstraint(Sketcher.Constraint("Vertical", 22, 1, 24, 1))
sketch3.addConstraint(Sketcher.Constraint("Vertical", 21, 2, 27, 1))
sketch3.addConstraint(Sketcher.Constraint("Vertical", 18, 2, 30, 1))
sketch3.addConstraint(Sketcher.Constraint("Vertical", 15, 2, 33, 1))
sketch3.addConstraint(Sketcher.Constraint("Vertical", 12, 2, 36, 1))
sketch3.addConstraint(Sketcher.Constraint("Vertical", 9, 2, 39, 1))
sketch3.addConstraint(Sketcher.Constraint("Vertical", 6, 2, 42, 1))
sketch3.addConstraint(Sketcher.Constraint("Vertical", 3, 2, 46, 1))
sketch3.addConstraint(Sketcher.Constraint("Vertical", 0, 2, 49, 1))
sketch3.addConstraint(Sketcher.Constraint("Vertical", 58, 2, 62, 1))
sketch3.addConstraint(Sketcher.Constraint("Vertical", 55, 1, 65, 1))
sketch3.addConstraint(Sketcher.Constraint("Vertical", 57, 2, 68, 1))
sketch3.addConstraint(Sketcher.Constraint("Equal", 0, 2))
sketch3.addConstraint(Sketcher.Constraint("Equal", 2, 3))
sketch3.addConstraint(Sketcher.Constraint("Equal", 3, 5))
sketch3.addConstraint(Sketcher.Constraint("Equal", 5, 6))
sketch3.addConstraint(Sketcher.Constraint("Equal", 6, 8))
sketch3.addConstraint(Sketcher.Constraint("Equal", 8, 9))
sketch3.addConstraint(Sketcher.Constraint("Equal", 9, 11))
sketch3.addConstraint(Sketcher.Constraint("Equal", 11, 12))
sketch3.addConstraint(Sketcher.Constraint("Equal", 12, 14))
sketch3.addConstraint(Sketcher.Constraint("Equal", 14, 15))
sketch3.addConstraint(Sketcher.Constraint("Equal", 15, 17))
sketch3.addConstraint(Sketcher.Constraint("Equal", 17, 18))
sketch3.addConstraint(Sketcher.Constraint("Equal", 18, 20))
sketch3.addConstraint(Sketcher.Constraint("Equal", 20, 21))
sketch3.addConstraint(Sketcher.Constraint("Equal", 21, 23))
sketch3.addConstraint(Sketcher.Constraint("Equal", 23, 25))
sketch3.addConstraint(Sketcher.Constraint("Equal", 51, 53))
sketch3.addConstraint(Sketcher.Constraint("Equal", 53, 54))
sketch3.addConstraint(Sketcher.Constraint("Equal", 54, 56))
sketch3.addConstraint(Sketcher.Constraint("Equal", 56, 57))
sketch3.addConstraint(Sketcher.Constraint("Equal", 57, 58))
sketch3.addConstraint(Sketcher.Constraint("Equal", 58, 60))
sketch3.addConstraint(Sketcher.Constraint("Equal", 63, 64))
sketch3.addConstraint(Sketcher.Constraint("Equal", 64, 66))
sketch3.addConstraint(Sketcher.Constraint("Radius", 1, Q("0.5 in")))
sketch3.addConstraint(Sketcher.Constraint("DistanceX", -1, 1, 25, 2, Q("0.575 in")))
sketch3.addConstraint(Sketcher.Constraint("DistanceX", 0, 2, -1, 1, Q("6.805 mm")))
sketch3.addConstraint(Sketcher.Constraint("DistanceY", -1, 1, 2, 2, Q("13.214999 mm")))
sketch3.addConstraint(Sketcher.Constraint("DistanceX", 52, 1, -1, 1, Q("9.257902 mm")))
sketch3.addConstraint(Sketcher.Constraint("Distance", 0, Q("2.560119 mm")))
sketch3.addConstraint(Sketcher.Constraint("DistanceX", 4, 1, -1, 1, Q("0.79744 mm")))
sketch3.addConstraint(Sketcher.Constraint("DistanceY", -1, 1, 7, 1, Q("12.475048 mm")))
sketch3.addConstraint(Sketcher.Constraint("DistanceY", -1, 1, 11, 2, Q("13.89018 mm")))
sketch3.addConstraint(Sketcher.Constraint("DistanceY", -1, 1, 13, 1, Q("9.785518 mm")))
sketch3.addConstraint(Sketcher.Constraint("DistanceY", -1, 1, 17, 2, Q("9.99781 mm")))
sketch3.addConstraint(Sketcher.Constraint("DistanceX", -1, 1, 19, 1, Q("11.808161 mm")))
sketch3.addConstraint(Sketcher.Constraint("DistanceY", 55, 1, -1, 1, Q("6.118272 mm")))
sketch3.addConstraint(Sketcher.Constraint("DistanceY", 58, 2, -1, 1, Q("3.158362 mm")))
pocket2 = body.newObject("PartDesign::Pocket", "Pocket001")
pocket2.Profile = sketch3
pocket2.Length = Q("1.25 in")
pocket2.Reversed = True

# Sketch on YZ plane
sketch4 = body.newObject("Sketcher::SketchObject", "Sketch003")
sketch4.AttachmentSupport = (doc.getObject("YZ_Plane"), [""])
sketch4.MapMode = "FlatFace"
sketch4.AttachmentOffset = App.Placement(V(0, 0, 0.815 * 25.4), App.Rotation())
sketch4.addGeometry(Part.Circle(V(0, 0, 0), V(0, 0, 1), 15), False)
sketch4.addConstraint(Sketcher.Constraint("Coincident", 0, 3, -1, 1))
sketch4.addConstraint(Sketcher.Constraint("Diameter", 0, Q("1.15 in")))
pocket3 = body.newObject("PartDesign::Pocket", "Pocket002")
pocket3.Profile = sketch4
pocket3.Length = Q("0.38 in")

doc.recompute()
